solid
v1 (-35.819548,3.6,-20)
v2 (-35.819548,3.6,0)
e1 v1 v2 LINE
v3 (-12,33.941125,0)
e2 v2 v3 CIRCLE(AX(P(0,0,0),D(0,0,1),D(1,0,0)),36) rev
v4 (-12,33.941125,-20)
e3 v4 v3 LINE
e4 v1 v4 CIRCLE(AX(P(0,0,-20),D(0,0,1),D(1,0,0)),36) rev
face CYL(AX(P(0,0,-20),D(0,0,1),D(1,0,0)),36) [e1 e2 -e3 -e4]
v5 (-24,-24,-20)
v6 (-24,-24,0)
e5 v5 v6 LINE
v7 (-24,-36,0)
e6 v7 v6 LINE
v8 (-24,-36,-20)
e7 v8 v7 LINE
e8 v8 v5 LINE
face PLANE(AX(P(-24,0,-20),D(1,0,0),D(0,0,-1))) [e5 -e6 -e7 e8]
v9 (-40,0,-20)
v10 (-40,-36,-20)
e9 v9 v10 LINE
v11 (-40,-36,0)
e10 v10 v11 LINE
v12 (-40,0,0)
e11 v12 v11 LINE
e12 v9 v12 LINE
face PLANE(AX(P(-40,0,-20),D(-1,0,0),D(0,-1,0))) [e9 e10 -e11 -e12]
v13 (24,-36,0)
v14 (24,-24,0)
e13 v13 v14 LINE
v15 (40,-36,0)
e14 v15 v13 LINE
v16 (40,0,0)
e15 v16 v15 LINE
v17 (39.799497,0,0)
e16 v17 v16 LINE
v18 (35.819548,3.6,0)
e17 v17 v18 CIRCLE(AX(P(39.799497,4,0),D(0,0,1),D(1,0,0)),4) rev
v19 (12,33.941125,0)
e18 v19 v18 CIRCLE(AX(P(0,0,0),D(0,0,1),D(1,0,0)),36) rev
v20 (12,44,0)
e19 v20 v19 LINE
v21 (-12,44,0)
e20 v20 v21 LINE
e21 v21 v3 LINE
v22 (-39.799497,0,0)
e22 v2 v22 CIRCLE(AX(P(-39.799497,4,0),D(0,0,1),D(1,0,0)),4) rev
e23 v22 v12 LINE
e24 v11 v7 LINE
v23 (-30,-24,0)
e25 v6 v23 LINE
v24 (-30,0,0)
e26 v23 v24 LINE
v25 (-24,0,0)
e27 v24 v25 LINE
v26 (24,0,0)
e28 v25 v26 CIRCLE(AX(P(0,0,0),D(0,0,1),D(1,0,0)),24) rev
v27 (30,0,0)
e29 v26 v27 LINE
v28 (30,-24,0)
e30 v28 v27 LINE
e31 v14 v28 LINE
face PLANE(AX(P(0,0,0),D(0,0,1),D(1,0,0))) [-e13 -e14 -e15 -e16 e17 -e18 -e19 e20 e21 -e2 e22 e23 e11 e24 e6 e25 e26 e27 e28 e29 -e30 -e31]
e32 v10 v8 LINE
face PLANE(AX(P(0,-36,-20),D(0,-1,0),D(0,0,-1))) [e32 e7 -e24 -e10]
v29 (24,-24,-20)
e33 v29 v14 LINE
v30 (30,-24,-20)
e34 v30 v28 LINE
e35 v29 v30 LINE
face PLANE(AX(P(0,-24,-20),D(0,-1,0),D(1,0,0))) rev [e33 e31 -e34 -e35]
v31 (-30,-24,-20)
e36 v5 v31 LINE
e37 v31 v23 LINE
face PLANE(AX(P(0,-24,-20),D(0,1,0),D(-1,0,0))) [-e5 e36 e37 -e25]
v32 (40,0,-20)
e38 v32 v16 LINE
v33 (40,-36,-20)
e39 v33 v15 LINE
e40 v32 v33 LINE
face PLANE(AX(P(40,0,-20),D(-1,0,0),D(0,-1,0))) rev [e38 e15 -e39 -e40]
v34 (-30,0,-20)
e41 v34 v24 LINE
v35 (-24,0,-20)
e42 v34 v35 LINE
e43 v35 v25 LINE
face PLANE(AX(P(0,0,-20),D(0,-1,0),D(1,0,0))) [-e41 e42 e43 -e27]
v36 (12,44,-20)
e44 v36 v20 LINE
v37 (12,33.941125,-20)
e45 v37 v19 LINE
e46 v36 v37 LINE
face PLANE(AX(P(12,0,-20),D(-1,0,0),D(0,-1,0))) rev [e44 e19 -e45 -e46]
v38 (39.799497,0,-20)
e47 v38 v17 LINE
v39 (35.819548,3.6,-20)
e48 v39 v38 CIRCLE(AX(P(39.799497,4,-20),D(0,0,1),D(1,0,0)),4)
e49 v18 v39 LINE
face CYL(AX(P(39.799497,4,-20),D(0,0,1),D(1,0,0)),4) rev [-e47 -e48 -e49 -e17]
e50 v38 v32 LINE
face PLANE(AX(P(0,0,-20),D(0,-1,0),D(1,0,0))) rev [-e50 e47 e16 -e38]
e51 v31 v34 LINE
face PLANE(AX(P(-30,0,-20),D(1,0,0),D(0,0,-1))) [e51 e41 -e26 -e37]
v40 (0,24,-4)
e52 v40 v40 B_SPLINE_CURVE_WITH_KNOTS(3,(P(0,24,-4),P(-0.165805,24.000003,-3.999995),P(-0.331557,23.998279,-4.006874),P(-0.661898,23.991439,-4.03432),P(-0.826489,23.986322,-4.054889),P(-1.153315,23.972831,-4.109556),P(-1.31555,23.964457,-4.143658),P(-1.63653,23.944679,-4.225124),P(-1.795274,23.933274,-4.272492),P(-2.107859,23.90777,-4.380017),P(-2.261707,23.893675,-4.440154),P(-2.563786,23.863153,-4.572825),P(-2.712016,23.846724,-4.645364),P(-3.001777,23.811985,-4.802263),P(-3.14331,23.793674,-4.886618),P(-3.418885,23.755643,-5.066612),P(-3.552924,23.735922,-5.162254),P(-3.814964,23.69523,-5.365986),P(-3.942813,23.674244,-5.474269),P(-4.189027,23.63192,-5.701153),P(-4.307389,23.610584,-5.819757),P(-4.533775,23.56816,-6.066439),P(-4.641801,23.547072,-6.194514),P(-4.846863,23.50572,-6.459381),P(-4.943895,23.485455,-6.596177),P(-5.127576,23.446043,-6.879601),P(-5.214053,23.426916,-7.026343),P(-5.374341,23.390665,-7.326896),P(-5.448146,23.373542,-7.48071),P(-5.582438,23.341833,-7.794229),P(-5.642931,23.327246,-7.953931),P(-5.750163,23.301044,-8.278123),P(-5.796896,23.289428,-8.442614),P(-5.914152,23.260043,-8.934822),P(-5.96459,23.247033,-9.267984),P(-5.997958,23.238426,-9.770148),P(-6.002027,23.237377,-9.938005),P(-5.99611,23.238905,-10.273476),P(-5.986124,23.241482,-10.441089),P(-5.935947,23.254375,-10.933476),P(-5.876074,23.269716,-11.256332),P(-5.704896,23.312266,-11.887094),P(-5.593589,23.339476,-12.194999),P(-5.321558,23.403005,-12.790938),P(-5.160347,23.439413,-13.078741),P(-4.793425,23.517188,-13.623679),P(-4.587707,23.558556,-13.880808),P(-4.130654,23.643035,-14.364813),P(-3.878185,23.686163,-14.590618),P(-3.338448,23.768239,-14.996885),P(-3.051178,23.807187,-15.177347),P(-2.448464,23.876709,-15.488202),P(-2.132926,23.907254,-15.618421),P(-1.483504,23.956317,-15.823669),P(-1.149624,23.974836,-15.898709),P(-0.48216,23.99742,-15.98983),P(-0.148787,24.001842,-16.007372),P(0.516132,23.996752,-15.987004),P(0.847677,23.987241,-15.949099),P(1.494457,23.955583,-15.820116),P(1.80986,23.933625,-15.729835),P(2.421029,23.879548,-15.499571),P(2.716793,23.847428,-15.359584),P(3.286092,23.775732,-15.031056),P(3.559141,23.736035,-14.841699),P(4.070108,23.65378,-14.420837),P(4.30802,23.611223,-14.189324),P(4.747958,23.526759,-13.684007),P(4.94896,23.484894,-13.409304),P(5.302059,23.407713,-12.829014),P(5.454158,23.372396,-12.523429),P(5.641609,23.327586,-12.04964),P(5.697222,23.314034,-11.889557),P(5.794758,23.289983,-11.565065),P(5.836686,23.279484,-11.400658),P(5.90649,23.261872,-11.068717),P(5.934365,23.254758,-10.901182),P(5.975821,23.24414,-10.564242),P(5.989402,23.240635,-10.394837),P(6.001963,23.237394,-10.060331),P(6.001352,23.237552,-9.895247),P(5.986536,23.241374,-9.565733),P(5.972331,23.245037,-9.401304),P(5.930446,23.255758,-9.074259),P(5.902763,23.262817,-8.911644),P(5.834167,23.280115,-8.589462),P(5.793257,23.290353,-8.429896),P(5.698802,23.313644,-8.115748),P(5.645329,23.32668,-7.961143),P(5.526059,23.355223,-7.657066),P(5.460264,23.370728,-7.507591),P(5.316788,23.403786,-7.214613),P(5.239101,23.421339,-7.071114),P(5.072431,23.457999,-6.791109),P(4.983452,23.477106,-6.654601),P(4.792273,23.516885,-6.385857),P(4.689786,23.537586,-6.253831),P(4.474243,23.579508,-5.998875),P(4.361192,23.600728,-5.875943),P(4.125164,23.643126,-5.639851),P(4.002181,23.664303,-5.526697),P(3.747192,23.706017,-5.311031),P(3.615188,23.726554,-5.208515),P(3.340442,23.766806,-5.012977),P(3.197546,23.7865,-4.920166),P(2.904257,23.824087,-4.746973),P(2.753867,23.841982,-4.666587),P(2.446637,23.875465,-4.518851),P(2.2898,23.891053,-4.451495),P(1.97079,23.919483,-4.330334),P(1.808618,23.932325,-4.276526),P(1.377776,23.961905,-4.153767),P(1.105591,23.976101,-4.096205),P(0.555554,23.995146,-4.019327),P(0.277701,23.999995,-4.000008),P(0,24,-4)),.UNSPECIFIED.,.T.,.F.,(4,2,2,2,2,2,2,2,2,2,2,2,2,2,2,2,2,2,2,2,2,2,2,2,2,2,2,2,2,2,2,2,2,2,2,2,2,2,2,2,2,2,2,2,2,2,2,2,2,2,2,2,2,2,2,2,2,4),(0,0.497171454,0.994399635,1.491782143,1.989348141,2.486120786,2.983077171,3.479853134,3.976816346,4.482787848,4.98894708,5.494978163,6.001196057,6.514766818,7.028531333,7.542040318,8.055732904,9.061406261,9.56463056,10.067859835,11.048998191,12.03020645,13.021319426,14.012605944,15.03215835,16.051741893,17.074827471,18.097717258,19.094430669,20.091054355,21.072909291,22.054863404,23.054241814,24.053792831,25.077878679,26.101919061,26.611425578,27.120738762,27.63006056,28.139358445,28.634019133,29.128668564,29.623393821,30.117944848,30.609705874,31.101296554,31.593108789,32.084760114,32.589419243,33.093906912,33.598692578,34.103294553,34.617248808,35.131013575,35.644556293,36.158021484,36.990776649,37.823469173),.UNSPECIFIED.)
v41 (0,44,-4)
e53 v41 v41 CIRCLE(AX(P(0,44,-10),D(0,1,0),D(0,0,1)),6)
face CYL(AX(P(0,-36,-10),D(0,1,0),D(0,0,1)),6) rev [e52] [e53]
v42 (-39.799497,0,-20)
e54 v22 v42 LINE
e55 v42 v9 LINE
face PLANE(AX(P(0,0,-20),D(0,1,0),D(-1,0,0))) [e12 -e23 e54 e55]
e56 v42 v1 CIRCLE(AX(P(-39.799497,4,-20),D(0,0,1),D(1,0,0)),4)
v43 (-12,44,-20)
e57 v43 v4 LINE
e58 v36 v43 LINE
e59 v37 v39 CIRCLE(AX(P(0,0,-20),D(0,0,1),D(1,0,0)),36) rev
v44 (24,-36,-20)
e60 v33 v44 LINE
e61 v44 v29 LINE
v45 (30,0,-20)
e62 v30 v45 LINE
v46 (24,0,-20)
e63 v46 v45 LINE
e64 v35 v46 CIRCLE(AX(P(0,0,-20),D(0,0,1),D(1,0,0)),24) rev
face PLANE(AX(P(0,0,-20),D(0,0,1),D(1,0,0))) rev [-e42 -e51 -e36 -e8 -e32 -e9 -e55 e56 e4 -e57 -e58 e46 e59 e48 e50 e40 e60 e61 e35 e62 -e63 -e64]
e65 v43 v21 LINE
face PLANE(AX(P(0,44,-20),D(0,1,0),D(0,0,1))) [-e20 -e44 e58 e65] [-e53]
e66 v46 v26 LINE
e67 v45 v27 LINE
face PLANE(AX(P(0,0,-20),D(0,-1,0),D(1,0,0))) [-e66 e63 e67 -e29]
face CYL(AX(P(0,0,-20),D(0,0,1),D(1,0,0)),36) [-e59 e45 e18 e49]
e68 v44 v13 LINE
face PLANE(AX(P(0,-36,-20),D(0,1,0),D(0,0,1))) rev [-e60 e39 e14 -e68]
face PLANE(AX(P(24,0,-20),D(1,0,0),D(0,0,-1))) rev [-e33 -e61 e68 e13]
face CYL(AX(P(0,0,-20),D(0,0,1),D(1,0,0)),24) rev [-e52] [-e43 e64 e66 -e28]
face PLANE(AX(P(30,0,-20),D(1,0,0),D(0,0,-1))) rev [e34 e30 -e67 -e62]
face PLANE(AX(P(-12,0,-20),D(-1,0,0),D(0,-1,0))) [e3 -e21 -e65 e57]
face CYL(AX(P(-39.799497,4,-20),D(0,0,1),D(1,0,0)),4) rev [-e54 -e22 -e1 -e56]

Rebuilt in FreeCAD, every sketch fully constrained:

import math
import FreeCAD as App
import Part
import Sketcher
from FreeCAD import Vector
Q = App.Units.Quantity


def edges_at(feature, points):
    """Names of the edges that pass closest to the given points."""
    edges = feature.Shape.Edges
    near = lambda p: min(range(len(edges)), key=lambda i: edges[i].distToShape(Part.Vertex(*p))[0])
    return sorted({f"Edge{near(p) + 1}" for p in points})

doc = App.newDocument("Part")
body = doc.addObject("PartDesign::Body", "Body")

sketch1 = body.newObject("Sketcher::SketchObject", "Sketch")
sketch1.AttachmentSupport = (doc.getObject("XY_Plane"), [""])
sketch1.MapMode = "FlatFace"
sketch1.addGeometry([
    Part.LineSegment(Vector(-36, 0, 0), Vector(-40, 0, 0)),
    Part.LineSegment(Vector(-40, 0, 0), Vector(-40, -36, 0)),
    Part.LineSegment(Vector(-40, -36, 0), Vector(-24, -36, 0)),
    Part.LineSegment(Vector(-24, -36, 0), Vector(-24, -24, 0)),
    Part.LineSegment(Vector(-24, -24, 0), Vector(-30, -24, 0)),
    Part.LineSegment(Vector(-30, -24, 0), Vector(-30, 0, 0)),
    Part.LineSegment(Vector(-30, 0, 0), Vector(-24, 0, 0)),
    Part.ArcOfCircle(Part.Circle(Vector(0, 0, 0), Vector(0, 0, 1), 24), math.radians(0), math.radians(180)),
    Part.LineSegment(Vector(24, 0, 0), Vector(30, 0, 0)),
    Part.LineSegment(Vector(30, 0, 0), Vector(30, -24, 0)),
    Part.LineSegment(Vector(30, -24, 0), Vector(24, -24, 0)),
    Part.LineSegment(Vector(24, -24, 0), Vector(24, -36, 0)),
    Part.LineSegment(Vector(24, -36, 0), Vector(40, -36, 0)),
    Part.LineSegment(Vector(40, -36, 0), Vector(40, 0, 0)),
    Part.LineSegment(Vector(40, 0, 0), Vector(36, 0, 0)),
    Part.ArcOfCircle(Part.Circle(Vector(0, 0, 0), Vector(0, 0, 1), 36), math.radians(0), math.radians(70.528779)),
    Part.LineSegment(Vector(12, 33.941125, 0), Vector(12, 44, 0)),
    Part.LineSegment(Vector(12, 44, 0), Vector(-12, 44, 0)),
    Part.LineSegment(Vector(-12, 44, 0), Vector(-12, 33.941125, 0)),
    Part.ArcOfCircle(Part.Circle(Vector(0, 0, 0), Vector(0, 0, 1), 36), math.radians(109.471221), math.radians(180)),
], False)
sketch1.addConstraint([
    Sketcher.Constraint("Coincident", 0, 2, 1, 1),
    Sketcher.Constraint("Coincident", 1, 2, 2, 1),
    Sketcher.Constraint("Coincident", 2, 2, 3, 1),
    Sketcher.Constraint("Coincident", 3, 2, 4, 1),
    Sketcher.Constraint("Coincident", 4, 2, 5, 1),
    Sketcher.Constraint("Coincident", 5, 2, 6, 1),
    Sketcher.Constraint("Coincident", 6, 2, 7, 2),
    Sketcher.Constraint("Coincident", 7, 1, 8, 1),
    Sketcher.Constraint("Coincident", 8, 2, 9, 1),
    Sketcher.Constraint("Coincident", 9, 2, 10, 1),
    Sketcher.Constraint("Coincident", 10, 2, 11, 1),
    Sketcher.Constraint("Coincident", 11, 2, 12, 1),
    Sketcher.Constraint("Coincident", 12, 2, 13, 1),
    Sketcher.Constraint("Coincident", 13, 2, 14, 1),
    Sketcher.Constraint("Coincident", 14, 2, 15, 1),
    Sketcher.Constraint("Coincident", 15, 2, 16, 1),
    Sketcher.Constraint("Coincident", 16, 2, 17, 1),
    Sketcher.Constraint("Coincident", 17, 2, 18, 1),
    Sketcher.Constraint("Coincident", 18, 2, 19, 1),
    Sketcher.Constraint("Coincident", 19, 2, 0, 1),
    Sketcher.Constraint("Horizontal", 0),
    Sketcher.Constraint("Vertical", 1),
    Sketcher.Constraint("Horizontal", 2),
    Sketcher.Constraint("Vertical", 3),
    Sketcher.Constraint("Horizontal", 4),
    Sketcher.Constraint("Vertical", 5),
    Sketcher.Constraint("Horizontal", 6),
    Sketcher.Constraint("Horizontal", 8),
    Sketcher.Constraint("Vertical", 9),
    Sketcher.Constraint("Horizontal", 10),
    Sketcher.Constraint("Vertical", 11),
    Sketcher.Constraint("Horizontal", 12),
    Sketcher.Constraint("Vertical", 13),
    Sketcher.Constraint("Horizontal", 14),
    Sketcher.Constraint("Vertical", 16),
    Sketcher.Constraint("Horizontal", 17),
    Sketcher.Constraint("Vertical", 18),
    Sketcher.Constraint("Coincident", 7, 3, -1, 1),
    Sketcher.Constraint("Coincident", 15, 3, -1, 1),
    Sketcher.Constraint("Coincident", 19, 3, -1, 1),
    Sketcher.Constraint("Equal", 15, 19),
    Sketcher.Constraint("Symmetric", 5, 2, 8, 2, -1, 1),
    Sketcher.Constraint("Symmetric", 0, 2, 13, 2, -1, 1),
    Sketcher.Constraint("Symmetric", 3, 2, 10, 2, -2),
    Sketcher.Constraint("PointOnObject", 0, 2, -1),
    Sketcher.Constraint("PointOnObject", 5, 2, -1),
    Sketcher.Constraint("Horizontal", 2, 2, 11, 2),
    Sketcher.Constraint("Horizontal", 15, 2, 18, 2),
    Sketcher.Constraint("Vertical", 3, 2, 6, 2),
    Sketcher.Constraint("Equal", 17, 5),
    Sketcher.Constraint("Radius", 7, Q("24 mm")),
    Sketcher.Constraint("Radius", 15, Q("36 mm")),
    Sketcher.Constraint("DistanceX", 0, 2, 0, 1, Q("4 mm")),
    Sketcher.Constraint("DistanceX", 4, 2, 4, 1, Q("6 mm")),
    Sketcher.Constraint("DistanceX", 17, 2, 17, 1, Q("24 mm")),
    Sketcher.Constraint("DistanceY", 1, 2, 1, 1, Q("36 mm")),
    Sketcher.Constraint("DistanceY", -1, 1, 16, 2, Q("44 mm")),
])
pad1 = body.newObject("PartDesign::Pad", "Pad")
pad1.Profile = sketch1
pad1.Length = 20
pad1.Reversed = True
doc.recompute()

fillet = body.newObject("PartDesign::Fillet", "Fillet")
fillet.Base = (pad1, edges_at(pad1, [(-36, 0, -10), (36, 0, -10)]))
fillet.Radius = 4

sketch2 = body.newObject("Sketcher::SketchObject", "Sketch001")
sketch2.AttachmentSupport = (doc.getObject("XZ_Plane"), [""])
sketch2.MapMode = "FlatFace"
sketch2.AttachmentOffset = App.Placement(Vector(0, 0, -44), App.Rotation())
sketch2.addGeometry(Part.Circle(Vector(0, -10, 0), Vector(0, 0, 1), 6), False)
sketch2.addConstraint([
    Sketcher.Constraint("PointOnObject", 0, 3, -2),
    Sketcher.Constraint("Diameter", 0, Q("12 mm")),
    Sketcher.Constraint("DistanceY", 0, 3, -1, 1, Q("10 mm")),
])
pocket1 = body.newObject("PartDesign::Pocket", "Pocket")
pocket1.Profile = sketch2
pocket1.Type = "ThroughAll"
pocket1.Reversed = True

doc.recompute()
